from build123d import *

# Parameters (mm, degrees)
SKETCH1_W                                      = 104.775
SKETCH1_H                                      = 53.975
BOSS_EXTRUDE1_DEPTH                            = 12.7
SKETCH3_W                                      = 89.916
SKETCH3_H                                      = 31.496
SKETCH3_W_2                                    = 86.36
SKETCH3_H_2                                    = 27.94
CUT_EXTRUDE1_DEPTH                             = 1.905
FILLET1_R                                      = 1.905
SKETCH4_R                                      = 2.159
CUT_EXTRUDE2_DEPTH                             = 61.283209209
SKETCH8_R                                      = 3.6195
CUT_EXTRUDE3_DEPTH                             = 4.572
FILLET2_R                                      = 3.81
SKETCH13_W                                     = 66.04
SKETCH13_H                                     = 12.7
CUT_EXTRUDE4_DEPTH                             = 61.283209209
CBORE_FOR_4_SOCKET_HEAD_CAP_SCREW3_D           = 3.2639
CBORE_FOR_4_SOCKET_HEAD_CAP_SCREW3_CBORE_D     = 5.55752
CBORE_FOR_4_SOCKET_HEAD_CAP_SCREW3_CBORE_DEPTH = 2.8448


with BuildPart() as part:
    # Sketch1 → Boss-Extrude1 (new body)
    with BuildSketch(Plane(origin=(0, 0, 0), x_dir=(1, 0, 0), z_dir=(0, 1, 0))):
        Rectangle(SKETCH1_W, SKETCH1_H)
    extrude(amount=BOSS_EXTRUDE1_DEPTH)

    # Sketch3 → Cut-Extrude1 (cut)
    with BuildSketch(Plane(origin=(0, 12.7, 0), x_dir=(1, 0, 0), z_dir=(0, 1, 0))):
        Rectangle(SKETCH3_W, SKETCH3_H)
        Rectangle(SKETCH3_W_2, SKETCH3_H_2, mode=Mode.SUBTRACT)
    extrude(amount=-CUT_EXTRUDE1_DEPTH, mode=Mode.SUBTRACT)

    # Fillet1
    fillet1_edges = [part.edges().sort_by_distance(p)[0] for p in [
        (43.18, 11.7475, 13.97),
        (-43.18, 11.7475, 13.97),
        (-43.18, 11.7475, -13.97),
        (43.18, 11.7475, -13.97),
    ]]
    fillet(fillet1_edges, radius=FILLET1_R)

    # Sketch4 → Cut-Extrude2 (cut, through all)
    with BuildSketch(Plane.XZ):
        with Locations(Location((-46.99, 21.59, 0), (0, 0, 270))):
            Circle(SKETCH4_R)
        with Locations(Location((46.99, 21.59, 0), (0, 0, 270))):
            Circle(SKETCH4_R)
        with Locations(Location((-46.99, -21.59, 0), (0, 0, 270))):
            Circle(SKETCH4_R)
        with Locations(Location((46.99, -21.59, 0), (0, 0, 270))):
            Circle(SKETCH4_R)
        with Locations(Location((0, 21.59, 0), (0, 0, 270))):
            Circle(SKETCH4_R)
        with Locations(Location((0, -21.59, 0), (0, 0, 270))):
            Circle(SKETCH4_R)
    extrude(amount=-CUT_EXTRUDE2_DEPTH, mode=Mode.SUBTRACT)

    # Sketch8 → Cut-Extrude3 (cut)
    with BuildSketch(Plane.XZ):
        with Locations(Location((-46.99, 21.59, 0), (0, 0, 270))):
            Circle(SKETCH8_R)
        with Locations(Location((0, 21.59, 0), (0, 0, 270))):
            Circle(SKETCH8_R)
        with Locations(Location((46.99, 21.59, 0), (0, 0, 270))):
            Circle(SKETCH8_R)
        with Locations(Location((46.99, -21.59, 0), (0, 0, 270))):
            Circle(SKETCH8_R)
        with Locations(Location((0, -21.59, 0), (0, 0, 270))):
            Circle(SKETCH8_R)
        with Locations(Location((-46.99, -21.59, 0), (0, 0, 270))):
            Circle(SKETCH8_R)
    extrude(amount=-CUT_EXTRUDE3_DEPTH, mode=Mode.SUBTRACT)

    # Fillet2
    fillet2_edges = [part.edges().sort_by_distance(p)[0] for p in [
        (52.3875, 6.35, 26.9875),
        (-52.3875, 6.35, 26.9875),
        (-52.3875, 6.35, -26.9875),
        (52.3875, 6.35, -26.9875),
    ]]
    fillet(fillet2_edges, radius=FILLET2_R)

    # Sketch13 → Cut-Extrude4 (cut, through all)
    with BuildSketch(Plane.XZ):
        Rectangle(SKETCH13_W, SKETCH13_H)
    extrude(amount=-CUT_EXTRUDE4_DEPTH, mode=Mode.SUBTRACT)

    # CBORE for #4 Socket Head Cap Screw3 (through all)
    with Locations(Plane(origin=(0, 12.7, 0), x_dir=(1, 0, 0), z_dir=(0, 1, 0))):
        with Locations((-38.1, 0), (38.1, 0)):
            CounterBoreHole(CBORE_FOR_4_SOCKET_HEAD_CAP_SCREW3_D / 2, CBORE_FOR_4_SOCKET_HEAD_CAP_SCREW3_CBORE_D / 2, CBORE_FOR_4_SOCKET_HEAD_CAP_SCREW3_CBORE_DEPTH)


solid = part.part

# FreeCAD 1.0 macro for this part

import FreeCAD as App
import Part
import Sketcher
from FreeCAD import Vector
Q = App.Units.Quantity


def edges_at(feature, points):
    """Names of the edges that pass closest to the given points."""
    edges = feature.Shape.Edges
    near = lambda p: min(range(len(edges)), key=lambda i: edges[i].distToShape(Part.Vertex(*p))[0])
    return sorted({f"Edge{near(p) + 1}" for p in points})


def add_polygon(sketch, points):
    """Adds a closed chain of lines whose ends are joined by coincident constraints."""
    first, n = sketch.GeometryCount, len(points)
    for a, b in zip(points, points[1:] + points[:1]):
        sketch.addGeometry(Part.LineSegment(App.Vector(*a, 0), App.Vector(*b, 0)), False)
    for i in range(n):
        sketch.addConstraint(Sketcher.Constraint("Coincident", first + i, 2, first + (i + 1) % n, 1))

doc = App.newDocument("Part")
body = doc.addObject("PartDesign::Body", "Body")

sketch1 = body.newObject("Sketcher::SketchObject", "Sketch")
sketch1.AttachmentSupport = (doc.getObject("XZ_Plane"), [""])
sketch1.MapMode = "FlatFace"
add_polygon(sketch1, [(-52.3875, -26.9875), (-52.3875, 26.9875), (52.3875, 26.9875), (52.3875, -26.9875)])
sketch1.addConstraint([
    Sketcher.Constraint("Vertical", 0),
    Sketcher.Constraint("Horizontal", 1),
    Sketcher.Constraint("Vertical", 2),
    Sketcher.Constraint("Horizontal", 3),
    Sketcher.Constraint("Symmetric", 0, 2, 2, 2, -1, 1),
    Sketcher.Constraint("DistanceX", 1, 1, 1, 2, Q("4.125 in")),
    Sketcher.Constraint("DistanceY", 0, 1, 0, 2, Q("2.125 in")),
])
pad1 = body.newObject("PartDesign::Pad", "Pad")
pad1.Profile = sketch1
pad1.Length = Q("0.5 in")
pad1.Reversed = True

sketch2 = body.newObject("Sketcher::SketchObject", "Sketch001")
sketch2.AttachmentSupport = (doc.getObject("XZ_Plane"), [""])
sketch2.MapMode = "FlatFace"
sketch2.AttachmentOffset = App.Placement(Vector(0, 0, -0.5 * 25.4), App.Rotation())
add_polygon(sketch2, [(-44.958, -15.748), (-44.958, 15.748), (44.958, 15.748), (44.958, -15.748)])
add_polygon(sketch2, [(43.18, 13.97), (-43.18, 13.97), (-43.18, -13.97), (43.18, -13.97)])
sketch2.addConstraint([
    Sketcher.Constraint("Vertical", 0),
    Sketcher.Constraint("Horizontal", 1),
    Sketcher.Constraint("Vertical", 2),
    Sketcher.Constraint("Horizontal", 3),
    Sketcher.Constraint("Horizontal", 4),
    Sketcher.Constraint("Vertical", 5),
    Sketcher.Constraint("Horizontal", 6),
    Sketcher.Constraint("Vertical", 7),
    Sketcher.Constraint("Symmetric", 0, 2, 2, 2, -1, 1),
    Sketcher.Constraint("Symmetric", 4, 2, 6, 2, -1, 1),
    Sketcher.Constraint("DistanceX", 4, 2, 4, 1, Q("3.4 in")),
    Sketcher.Constraint("DistanceY", 5, 2, 5, 1, Q("1.1 in")),
    Sketcher.Constraint("DistanceX", 1, 1, 1, 2, Q("3.54 in")),
    Sketcher.Constraint("DistanceY", 0, 1, 0, 2, Q("1.24 in")),
])
pocket1 = body.newObject("PartDesign::Pocket", "Pocket")
pocket1.Profile = sketch2
pocket1.Length = Q("0.075 in")
pocket1.Reversed = True
doc.recompute()

fillet = body.newObject("PartDesign::Fillet", "Fillet")
fillet.Base = (pocket1, edges_at(pocket1, [
    (43.18, 11.748, 13.97),
    (-43.18, 11.748, 13.97),
    (-43.18, 11.748, -13.97),
    (43.18, 11.748, -13.97),
]))
fillet.Radius = Q("0.075 in")

sketch3 = body.newObject("Sketcher::SketchObject", "Sketch002")
sketch3.AttachmentSupport = (doc.getObject("XZ_Plane"), [""])
sketch3.MapMode = "FlatFace"
sketch3.addGeometry([
    Part.Circle(Vector(-46.99, 21.59, 0), Vector(0, 0, 1), 2.159),
    Part.Circle(Vector(46.99, 21.59, 0), Vector(0, 0, 1), 2.159),
    Part.Circle(Vector(-46.99, -21.59, 0), Vector(0, 0, 1), 2.159),
    Part.Circle(Vector(46.99, -21.59, 0), Vector(0, 0, 1), 2.159),
    Part.Circle(Vector(0, 21.59, 0), Vector(0, 0, 1), 2.159),
    Part.Circle(Vector(0, -21.59, 0), Vector(0, 0, 1), 2.159),
], False)
sketch3.addConstraint([
    Sketcher.Constraint("Equal", 0, 1),
    Sketcher.Constraint("Equal", 1, 2),
    Sketcher.Constraint("Equal", 2, 3),
    Sketcher.Constraint("Equal", 3, 4),
    Sketcher.Constraint("Equal", 4, 5),
    Sketcher.Constraint("Symmetric", 1, 3, 2, 3, -1, 1),
    Sketcher.Constraint("Symmetric", 0, 3, 3, 3, -1, 1),
    Sketcher.Constraint("Symmetric", 4, 3, 5, 3, -1, 1),
    Sketcher.Constraint("Symmetric", 0, 3, 1, 3, -2),
    Sketcher.Constraint("PointOnObject", 4, 3, -2),
    Sketcher.Constraint("Horizontal", 1, 3, 4, 3),
    Sketcher.Constraint("Diameter", 0, Q("0.17 in")),
    Sketcher.Constraint("DistanceX", 0, 3, 1, 3, Q("3.7 in")),
    Sketcher.Constraint("DistanceY", 2, 3, 0, 3, Q("1.7 in")),
])
pocket2 = body.newObject("PartDesign::Pocket", "Pocket001")
pocket2.Profile = sketch3
pocket2.Type = "ThroughAll"

sketch4 = body.newObject("Sketcher::SketchObject", "Sketch003")
sketch4.AttachmentSupport = (doc.getObject("XZ_Plane"), [""])
sketch4.MapMode = "FlatFace"
sketch4.addGeometry([
    Part.Circle(Vector(-46.99, 21.59, 0), Vector(0, 0, 1), 3.6195),
    Part.Circle(Vector(0, 21.59, 0), Vector(0, 0, 1), 3.6195),
    Part.Circle(Vector(46.99, 21.59, 0), Vector(0, 0, 1), 3.6195),
    Part.Circle(Vector(46.99, -21.59, 0), Vector(0, 0, 1), 3.6195),
    Part.Circle(Vector(0, -21.59, 0), Vector(0, 0, 1), 3.6195),
    Part.Circle(Vector(-46.99, -21.59, 0), Vector(0, 0, 1), 3.6195),
], False)
sketch4.addConstraint([
    Sketcher.Constraint("Equal", 0, 1),
    Sketcher.Constraint("Equal", 1, 2),
    Sketcher.Constraint("Equal", 2, 3),
    Sketcher.Constraint("Equal", 3, 4),
    Sketcher.Constraint("Equal", 4, 5),
    Sketcher.Constraint("Symmetric", 0, 3, 3, 3, -1, 1),
    Sketcher.Constraint("Symmetric", 1, 3, 4, 3, -1, 1),
    Sketcher.Constraint("Symmetric", 2, 3, 5, 3, -1, 1),
    Sketcher.Constraint("Symmetric", 0, 3, 2, 3, -2),
    Sketcher.Constraint("PointOnObject", 1, 3, -2),
    Sketcher.Constraint("Horizontal", 0, 3, 1, 3),
    Sketcher.Constraint("Diameter", 0, Q("0.285 in")),
    Sketcher.Constraint("DistanceX", 0, 3, 2, 3, Q("3.7 in")),
    Sketcher.Constraint("DistanceY", 3, 3, 2, 3, Q("1.7 in")),
])
pocket3 = body.newObject("PartDesign::Pocket", "Pocket002")
pocket3.Profile = sketch4
pocket3.Length = Q("0.18 in")
doc.recompute()

fillet2 = body.newObject("PartDesign::Fillet", "Fillet001")
fillet2.Base = (pocket3, edges_at(pocket3, [
    (52.388, 6.35, 26.988),
    (-52.388, 6.35, 26.988),
    (-52.388, 6.35, -26.988),
    (52.388, 6.35, -26.988),
]))
fillet2.Radius = Q("0.15 in")

sketch5 = body.newObject("Sketcher::SketchObject", "Sketch004")
sketch5.AttachmentSupport = (doc.getObject("XZ_Plane"), [""])
sketch5.MapMode = "FlatFace"
add_polygon(sketch5, [(-33.02, 6.35), (-33.02, -6.35), (33.02, -6.35), (33.02, 6.35)])
sketch5.addConstraint([
    Sketcher.Constraint("Vertical", 0),
    Sketcher.Constraint("Horizontal", 1),
    Sketcher.Constraint("Vertical", 2),
    Sketcher.Constraint("Horizontal", 3),
    Sketcher.Constraint("Symmetric", 0, 2, 2, 2, -1, 1),
    Sketcher.Constraint("DistanceX", 1, 1, 1, 2, Q("2.6 in")),
    Sketcher.Constraint("DistanceY", 0, 2, 0, 1, Q("0.5 in")),
])
pocket4 = body.newObject("PartDesign::Pocket", "Pocket003")
pocket4.Profile = sketch5
pocket4.Type = "ThroughAll"

sketch6 = body.newObject("Sketcher::SketchObject", "Sketch005")
sketch6.AttachmentSupport = (doc.getObject("XZ_Plane"), [""])
sketch6.MapMode = "FlatFace"
sketch6.AttachmentOffset = App.Placement(Vector(0, 0, -0.5 * 25.4), App.Rotation())
sketch6.addGeometry([
    Part.Circle(Vector(-38.1, 0, 0), Vector(0, 0, 1), 1.63195),
    Part.Circle(Vector(38.1, 0, 0), Vector(0, 0, 1), 1.63195),
], False)
sketch6.addConstraint([
    Sketcher.Constraint("Equal", 0, 1),
    Sketcher.Constraint("Symmetric", 0, 3, 1, 3, -1, 1),
    Sketcher.Constraint("PointOnObject", 0, 3, -1),
    Sketcher.Constraint("DistanceX", 0, 3, 1, 3, Q("3 in")),
    Sketcher.Constraint("Diameter", 0, Q("0.1285 in")),
])
doc.recompute()
hole = body.newObject("PartDesign::Hole", "Hole")
hole.Profile = sketch6
hole.ThreadType = "None"
hole.Diameter = Q("0.1285 in")
hole.DepthType = "ThroughAll"
hole.HoleCutType = "Counterbore"
hole.HoleCutDiameter = Q("0.2188 in")
hole.HoleCutDepth = Q("0.112 in")
hole.Reversed = True

doc.recompute()
